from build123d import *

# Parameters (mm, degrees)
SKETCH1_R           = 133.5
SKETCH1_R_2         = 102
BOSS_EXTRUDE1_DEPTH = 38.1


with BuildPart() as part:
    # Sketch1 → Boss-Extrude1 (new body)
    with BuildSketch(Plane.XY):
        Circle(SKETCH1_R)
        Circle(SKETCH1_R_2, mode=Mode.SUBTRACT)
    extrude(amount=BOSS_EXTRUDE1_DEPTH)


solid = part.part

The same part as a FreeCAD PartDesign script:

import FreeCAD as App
import Part
import Sketcher
from FreeCAD import Vector

doc = App.newDocument("Part")
body = doc.addObject("PartDesign::Body", "Body")

# Sketch on XY plane
sketch1 = body.newObject("Sketcher::SketchObject", "Sketch")
sketch1.AttachmentSupport = (doc.getObject("XY_Plane"), [""])
sketch1.MapMode = "FlatFace"
sketch1.addGeometry([
    Part.Circle(Vector(0, 0, 0), Vector(0, 0, 1), 133.5),
    Part.Circle(Vector(0, 0, 0), Vector(0, 0, 1), 102),
], False)
sketch1.addConstraint([
    Sketcher.Constraint("Coincident", 0, 3, -1, 1),
    Sketcher.Constraint("Coincident", 1, 3, -1, 1),
    Sketcher.Constraint("Diameter", 0, 267.0),
    Sketcher.Constraint("Diameter", 1, 204.0),
])
pad1 = body.newObject("PartDesign::Pad", "Pad")
pad1.Profile = sketch1
pad1.Length = 38.1

doc.recompute()
